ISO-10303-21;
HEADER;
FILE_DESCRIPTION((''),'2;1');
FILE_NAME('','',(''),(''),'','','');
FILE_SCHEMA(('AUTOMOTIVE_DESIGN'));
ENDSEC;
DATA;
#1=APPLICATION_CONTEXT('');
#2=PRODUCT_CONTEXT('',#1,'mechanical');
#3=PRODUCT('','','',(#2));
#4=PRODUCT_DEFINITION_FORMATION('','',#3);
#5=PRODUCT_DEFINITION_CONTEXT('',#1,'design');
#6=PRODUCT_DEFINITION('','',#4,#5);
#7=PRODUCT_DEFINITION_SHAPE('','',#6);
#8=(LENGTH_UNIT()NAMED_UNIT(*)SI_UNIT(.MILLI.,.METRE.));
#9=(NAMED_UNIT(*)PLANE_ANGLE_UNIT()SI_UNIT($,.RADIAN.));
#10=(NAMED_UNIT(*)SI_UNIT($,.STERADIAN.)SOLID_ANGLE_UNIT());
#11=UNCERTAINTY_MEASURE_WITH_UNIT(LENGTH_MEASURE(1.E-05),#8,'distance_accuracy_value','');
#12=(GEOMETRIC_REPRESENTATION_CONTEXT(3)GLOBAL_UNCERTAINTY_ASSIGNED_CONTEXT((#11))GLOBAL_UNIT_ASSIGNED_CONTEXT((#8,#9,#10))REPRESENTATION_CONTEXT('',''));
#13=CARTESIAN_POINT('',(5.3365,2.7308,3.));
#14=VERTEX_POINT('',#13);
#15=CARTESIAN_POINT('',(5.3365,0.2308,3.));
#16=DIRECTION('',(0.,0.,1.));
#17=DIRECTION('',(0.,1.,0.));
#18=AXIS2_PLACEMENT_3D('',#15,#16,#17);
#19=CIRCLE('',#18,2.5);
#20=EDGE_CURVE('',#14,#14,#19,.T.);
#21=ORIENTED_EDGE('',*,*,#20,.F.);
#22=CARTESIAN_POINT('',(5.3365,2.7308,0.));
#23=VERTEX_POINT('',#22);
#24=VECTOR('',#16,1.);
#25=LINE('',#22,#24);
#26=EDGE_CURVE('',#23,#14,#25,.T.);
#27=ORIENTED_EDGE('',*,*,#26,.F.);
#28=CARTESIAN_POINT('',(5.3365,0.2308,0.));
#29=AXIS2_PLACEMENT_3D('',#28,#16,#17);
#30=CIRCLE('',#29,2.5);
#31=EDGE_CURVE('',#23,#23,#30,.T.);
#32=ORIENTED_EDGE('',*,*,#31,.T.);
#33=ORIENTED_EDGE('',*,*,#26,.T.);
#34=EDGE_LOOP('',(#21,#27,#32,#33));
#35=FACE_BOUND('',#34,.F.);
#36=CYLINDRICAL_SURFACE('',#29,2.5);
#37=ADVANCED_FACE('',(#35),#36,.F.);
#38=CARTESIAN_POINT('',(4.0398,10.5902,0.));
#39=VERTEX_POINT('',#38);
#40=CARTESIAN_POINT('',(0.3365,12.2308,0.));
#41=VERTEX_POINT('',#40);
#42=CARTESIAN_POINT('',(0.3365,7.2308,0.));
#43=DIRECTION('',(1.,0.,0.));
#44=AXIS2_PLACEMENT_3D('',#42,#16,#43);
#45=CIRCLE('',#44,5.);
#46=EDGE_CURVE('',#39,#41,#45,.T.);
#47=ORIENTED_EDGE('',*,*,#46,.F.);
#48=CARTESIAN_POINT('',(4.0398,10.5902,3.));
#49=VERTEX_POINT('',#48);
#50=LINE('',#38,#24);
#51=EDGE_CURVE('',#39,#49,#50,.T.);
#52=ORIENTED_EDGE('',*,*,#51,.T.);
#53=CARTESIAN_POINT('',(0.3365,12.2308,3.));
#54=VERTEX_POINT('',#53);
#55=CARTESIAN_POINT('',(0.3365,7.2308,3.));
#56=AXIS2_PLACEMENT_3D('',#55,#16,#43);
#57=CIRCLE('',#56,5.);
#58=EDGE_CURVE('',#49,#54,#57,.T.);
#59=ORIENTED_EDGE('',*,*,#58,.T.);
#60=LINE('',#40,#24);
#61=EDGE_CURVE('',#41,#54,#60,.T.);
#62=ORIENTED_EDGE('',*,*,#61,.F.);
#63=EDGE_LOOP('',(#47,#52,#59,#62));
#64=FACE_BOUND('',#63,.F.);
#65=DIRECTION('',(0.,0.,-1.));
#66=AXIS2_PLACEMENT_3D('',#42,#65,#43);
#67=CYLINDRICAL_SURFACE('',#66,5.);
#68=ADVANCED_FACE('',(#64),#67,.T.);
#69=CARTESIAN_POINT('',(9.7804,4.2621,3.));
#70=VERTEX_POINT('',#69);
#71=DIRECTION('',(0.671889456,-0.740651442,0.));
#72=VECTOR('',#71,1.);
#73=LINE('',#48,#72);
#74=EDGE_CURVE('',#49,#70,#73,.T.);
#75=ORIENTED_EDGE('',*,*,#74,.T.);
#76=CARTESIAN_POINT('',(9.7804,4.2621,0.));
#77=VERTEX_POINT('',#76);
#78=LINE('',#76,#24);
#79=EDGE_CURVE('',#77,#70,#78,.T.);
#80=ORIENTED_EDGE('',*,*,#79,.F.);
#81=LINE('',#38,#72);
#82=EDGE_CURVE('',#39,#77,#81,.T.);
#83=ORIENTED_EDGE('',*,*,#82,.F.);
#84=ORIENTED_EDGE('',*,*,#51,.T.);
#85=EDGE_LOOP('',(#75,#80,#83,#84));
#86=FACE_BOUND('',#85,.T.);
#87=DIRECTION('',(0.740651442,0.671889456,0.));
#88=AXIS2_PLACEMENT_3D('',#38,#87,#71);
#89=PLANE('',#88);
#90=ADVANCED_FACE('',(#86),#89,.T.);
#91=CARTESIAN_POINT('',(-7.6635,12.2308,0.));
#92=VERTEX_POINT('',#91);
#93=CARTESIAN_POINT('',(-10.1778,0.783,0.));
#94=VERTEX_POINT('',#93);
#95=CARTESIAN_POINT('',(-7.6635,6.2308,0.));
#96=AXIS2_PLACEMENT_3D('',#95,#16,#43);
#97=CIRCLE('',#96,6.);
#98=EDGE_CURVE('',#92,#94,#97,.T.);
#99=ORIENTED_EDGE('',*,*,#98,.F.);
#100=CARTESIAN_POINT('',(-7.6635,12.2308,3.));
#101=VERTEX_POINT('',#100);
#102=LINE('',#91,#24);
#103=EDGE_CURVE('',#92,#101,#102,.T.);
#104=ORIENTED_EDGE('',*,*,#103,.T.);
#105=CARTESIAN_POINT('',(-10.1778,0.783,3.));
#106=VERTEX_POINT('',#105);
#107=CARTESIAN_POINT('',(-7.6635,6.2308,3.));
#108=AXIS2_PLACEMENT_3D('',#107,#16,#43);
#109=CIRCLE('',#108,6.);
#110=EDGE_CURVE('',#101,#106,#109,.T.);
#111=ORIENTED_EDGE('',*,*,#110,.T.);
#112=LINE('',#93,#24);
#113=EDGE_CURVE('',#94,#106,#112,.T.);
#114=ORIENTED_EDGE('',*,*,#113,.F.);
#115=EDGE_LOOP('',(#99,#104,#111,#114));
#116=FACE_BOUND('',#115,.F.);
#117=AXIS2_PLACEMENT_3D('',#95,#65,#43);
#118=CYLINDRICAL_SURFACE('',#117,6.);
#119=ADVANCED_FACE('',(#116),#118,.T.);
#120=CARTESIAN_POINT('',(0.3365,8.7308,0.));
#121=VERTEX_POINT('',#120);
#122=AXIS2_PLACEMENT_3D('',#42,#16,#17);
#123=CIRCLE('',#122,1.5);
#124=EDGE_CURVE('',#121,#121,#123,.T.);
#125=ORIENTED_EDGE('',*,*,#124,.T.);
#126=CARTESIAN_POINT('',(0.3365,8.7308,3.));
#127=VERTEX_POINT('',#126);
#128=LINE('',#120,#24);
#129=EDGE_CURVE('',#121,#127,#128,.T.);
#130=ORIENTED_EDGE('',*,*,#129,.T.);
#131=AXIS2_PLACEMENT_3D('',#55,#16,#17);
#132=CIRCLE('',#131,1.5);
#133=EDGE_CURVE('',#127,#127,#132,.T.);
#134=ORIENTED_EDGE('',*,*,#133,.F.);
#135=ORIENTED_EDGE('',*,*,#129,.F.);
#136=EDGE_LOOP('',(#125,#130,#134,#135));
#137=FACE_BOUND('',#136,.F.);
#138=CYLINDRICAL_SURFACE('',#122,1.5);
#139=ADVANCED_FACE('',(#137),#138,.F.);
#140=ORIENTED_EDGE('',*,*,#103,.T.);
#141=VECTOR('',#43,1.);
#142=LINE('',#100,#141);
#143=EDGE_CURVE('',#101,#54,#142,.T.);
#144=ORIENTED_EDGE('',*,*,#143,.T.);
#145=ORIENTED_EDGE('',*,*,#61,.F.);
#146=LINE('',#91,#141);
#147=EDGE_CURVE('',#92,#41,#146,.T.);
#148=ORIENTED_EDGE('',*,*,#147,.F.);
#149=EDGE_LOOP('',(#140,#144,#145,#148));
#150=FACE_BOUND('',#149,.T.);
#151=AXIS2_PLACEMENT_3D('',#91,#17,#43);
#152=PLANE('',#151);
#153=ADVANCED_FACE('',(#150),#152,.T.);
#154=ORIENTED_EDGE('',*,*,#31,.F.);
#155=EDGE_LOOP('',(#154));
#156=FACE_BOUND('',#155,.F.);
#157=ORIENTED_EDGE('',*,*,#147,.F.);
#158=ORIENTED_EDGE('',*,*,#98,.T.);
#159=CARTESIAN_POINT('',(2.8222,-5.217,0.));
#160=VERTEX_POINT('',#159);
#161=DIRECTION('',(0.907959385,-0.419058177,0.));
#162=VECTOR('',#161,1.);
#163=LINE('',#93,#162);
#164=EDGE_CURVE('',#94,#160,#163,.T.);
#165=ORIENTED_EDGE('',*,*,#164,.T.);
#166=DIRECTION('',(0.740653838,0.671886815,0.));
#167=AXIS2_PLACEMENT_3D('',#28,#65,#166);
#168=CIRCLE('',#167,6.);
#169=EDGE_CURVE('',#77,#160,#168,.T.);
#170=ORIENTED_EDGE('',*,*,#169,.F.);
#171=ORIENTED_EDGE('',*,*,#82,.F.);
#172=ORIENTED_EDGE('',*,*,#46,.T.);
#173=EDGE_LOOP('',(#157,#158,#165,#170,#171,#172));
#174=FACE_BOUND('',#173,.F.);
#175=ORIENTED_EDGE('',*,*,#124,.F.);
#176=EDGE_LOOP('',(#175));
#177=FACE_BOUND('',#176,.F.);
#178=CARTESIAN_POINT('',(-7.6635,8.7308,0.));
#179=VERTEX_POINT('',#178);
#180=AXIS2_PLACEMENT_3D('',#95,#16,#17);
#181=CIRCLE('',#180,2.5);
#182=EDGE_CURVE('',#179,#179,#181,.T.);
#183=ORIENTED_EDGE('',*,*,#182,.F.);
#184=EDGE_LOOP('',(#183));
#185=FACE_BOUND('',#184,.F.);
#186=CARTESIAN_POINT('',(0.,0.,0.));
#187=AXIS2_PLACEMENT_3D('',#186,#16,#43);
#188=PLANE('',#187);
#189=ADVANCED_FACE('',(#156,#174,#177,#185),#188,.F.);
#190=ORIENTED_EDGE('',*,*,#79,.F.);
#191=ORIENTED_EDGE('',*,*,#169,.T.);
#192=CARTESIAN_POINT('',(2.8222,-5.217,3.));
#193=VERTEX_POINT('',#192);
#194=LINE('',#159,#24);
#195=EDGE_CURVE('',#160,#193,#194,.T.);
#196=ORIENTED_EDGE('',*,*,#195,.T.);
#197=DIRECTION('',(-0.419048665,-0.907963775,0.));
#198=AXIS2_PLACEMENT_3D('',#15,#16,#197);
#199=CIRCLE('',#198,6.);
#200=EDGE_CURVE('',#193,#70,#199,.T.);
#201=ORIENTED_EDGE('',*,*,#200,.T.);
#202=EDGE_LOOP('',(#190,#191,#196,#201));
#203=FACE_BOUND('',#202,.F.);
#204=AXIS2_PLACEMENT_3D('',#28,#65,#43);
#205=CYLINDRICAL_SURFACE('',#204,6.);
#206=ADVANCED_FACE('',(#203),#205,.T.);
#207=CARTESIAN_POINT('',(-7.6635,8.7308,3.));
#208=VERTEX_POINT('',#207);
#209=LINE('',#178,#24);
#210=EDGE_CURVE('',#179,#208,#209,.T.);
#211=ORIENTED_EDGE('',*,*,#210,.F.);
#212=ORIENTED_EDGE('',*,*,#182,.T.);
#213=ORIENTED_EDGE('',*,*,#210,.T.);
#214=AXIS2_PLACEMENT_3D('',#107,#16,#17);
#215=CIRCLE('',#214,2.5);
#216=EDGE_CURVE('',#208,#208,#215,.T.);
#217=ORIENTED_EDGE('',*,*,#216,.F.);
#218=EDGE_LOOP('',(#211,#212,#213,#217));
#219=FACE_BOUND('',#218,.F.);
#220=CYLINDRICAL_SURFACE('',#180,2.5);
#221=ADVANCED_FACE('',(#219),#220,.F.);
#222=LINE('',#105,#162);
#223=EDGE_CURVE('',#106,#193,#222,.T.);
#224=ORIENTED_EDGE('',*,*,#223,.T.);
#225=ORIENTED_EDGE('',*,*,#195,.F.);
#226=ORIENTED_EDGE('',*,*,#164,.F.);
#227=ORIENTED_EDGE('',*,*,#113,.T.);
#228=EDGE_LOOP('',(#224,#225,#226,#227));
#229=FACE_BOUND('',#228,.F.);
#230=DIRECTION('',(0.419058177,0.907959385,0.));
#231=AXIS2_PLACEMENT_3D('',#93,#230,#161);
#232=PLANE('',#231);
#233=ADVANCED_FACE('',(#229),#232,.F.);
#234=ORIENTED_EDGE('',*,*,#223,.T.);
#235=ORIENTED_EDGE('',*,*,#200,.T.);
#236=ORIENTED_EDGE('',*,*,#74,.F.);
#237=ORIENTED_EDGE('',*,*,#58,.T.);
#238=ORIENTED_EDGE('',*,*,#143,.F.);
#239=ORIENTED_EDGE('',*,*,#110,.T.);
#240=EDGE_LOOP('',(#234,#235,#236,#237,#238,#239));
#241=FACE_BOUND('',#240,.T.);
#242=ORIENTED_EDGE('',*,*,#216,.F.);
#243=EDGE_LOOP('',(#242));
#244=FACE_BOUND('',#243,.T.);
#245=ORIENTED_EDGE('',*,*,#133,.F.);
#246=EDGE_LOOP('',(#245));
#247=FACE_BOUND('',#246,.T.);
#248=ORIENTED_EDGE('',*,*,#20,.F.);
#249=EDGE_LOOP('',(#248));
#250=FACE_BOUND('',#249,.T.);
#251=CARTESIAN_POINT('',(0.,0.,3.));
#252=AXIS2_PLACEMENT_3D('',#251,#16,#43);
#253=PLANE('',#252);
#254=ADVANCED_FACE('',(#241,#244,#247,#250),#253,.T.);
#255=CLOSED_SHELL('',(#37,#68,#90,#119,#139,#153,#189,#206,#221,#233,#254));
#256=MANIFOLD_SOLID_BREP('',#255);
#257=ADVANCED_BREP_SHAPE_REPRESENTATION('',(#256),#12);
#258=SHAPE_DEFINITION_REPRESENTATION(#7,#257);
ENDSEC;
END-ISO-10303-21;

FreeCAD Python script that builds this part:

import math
import FreeCAD as App
import Part
import Sketcher
Q = App.Units.Quantity

doc = App.newDocument("Part")
params = doc.addObject("Spreadsheet::Sheet", "Params")
for row, (alias, value) in enumerate([
    ("sketch1_radius", "5 mm"),
    ("sketch1_radius2", "6 mm"),
    ("pad1_length", "3 mm"),
    ("sketch2_diameter", "5 mm"),
    ("hole_diameter", "5 mm"),
    ("sketch3_diameter", "3 mm"),
    ("hole2_diameter", "3 mm"),
], start=1):
    params.set(f"A{row}", alias)
    params.set(f"B{row}", "=" + value)
    params.setAlias(f"B{row}", alias)

body = doc.addObject("PartDesign::Body", "Body")

sketch1 = body.newObject("Sketcher::SketchObject", "Sketch")
sketch1.AttachmentSupport = (doc.getObject("XY_Plane"), [""])
sketch1.MapMode = "FlatFace"
sketch1.addGeometry([
    Part.ArcOfCircle(Part.Circle(App.Vector(0.3, 7.2, 0), App.Vector(0, 0, 1), 5), math.radians(42), math.radians(90)),
    Part.LineSegment(App.Vector(0.3, 12.2, 0), App.Vector(-7.7, 12.2, 0)),
    Part.ArcOfCircle(Part.Circle(App.Vector(-7.7, 6.2, 0), App.Vector(0, 0, 1), 6), math.radians(90), math.radians(245)),
    Part.LineSegment(App.Vector(-10.2, 0.8, 0), App.Vector(2.8, -5.2, 0)),
    Part.ArcOfCircle(Part.Circle(App.Vector(5.3, 0.2, 0), App.Vector(0, 0, 1), 6), math.radians(-115), math.radians(42)),
    Part.LineSegment(App.Vector(9.8, 4.3, 0), App.Vector(4, 10.6, 0)),
], False)
sketch1.addConstraint([
    Sketcher.Constraint("Tangent", 0, 2, 1, 1),
    Sketcher.Constraint("Tangent", 1, 2, 2, 1),
    Sketcher.Constraint("Tangent", 2, 2, 3, 1),
    Sketcher.Constraint("Tangent", 3, 2, 4, 1),
    Sketcher.Constraint("Tangent", 4, 2, 5, 1),
    Sketcher.Constraint("Tangent", 5, 2, 0, 1),
    Sketcher.Constraint("Horizontal", 1),
    Sketcher.Constraint("Equal", 2, 4),
    Sketcher.Constraint("Radius", 0, Q("5 mm")),
    Sketcher.Constraint("Radius", 2, Q("6 mm")),
    Sketcher.Constraint("DistanceX", 0, 3, 4, 3, Q("5 mm")),
    Sketcher.Constraint("DistanceY", 4, 3, 0, 3, Q("7 mm")),
    Sketcher.Constraint("DistanceX", 2, 3, 4, 3, Q("13 mm")),
    Sketcher.Constraint("DistanceY", -1, 1, 2, 2, Q("0.783 mm")),
    Sketcher.Constraint("DistanceX", -1, 1, 0, 3, Q("0.3365 mm")),
])
sketch1.setExpression("Constraints[8]", "Params.sketch1_radius")
sketch1.setExpression("Constraints[9]", "Params.sketch1_radius2")
pad1 = body.newObject("PartDesign::Pad", "Pad")
pad1.Profile = sketch1
pad1.setExpression("Length", "Params.pad1_length")

sketch2 = body.newObject("Sketcher::SketchObject", "Sketch001")
sketch2.AttachmentSupport = (doc.getObject("XY_Plane"), [""])
sketch2.MapMode = "FlatFace"
sketch2.addGeometry([
    Part.Circle(App.Vector(5.3, 0.2, 0), App.Vector(0, 0, 1), 2.5),
    Part.Circle(App.Vector(-7.7, 6.2, 0), App.Vector(0, 0, 1), 2.5),
], False)
sketch2.addConstraint([
    Sketcher.Constraint("Equal", 0, 1),
    Sketcher.Constraint("Diameter", 0, Q("5 mm")),
    Sketcher.Constraint("DistanceX", 1, 3, 0, 3, Q("13 mm")),
    Sketcher.Constraint("DistanceY", 0, 3, 1, 3, Q("6 mm")),
    Sketcher.Constraint("DistanceX", -1, 1, 0, 3, Q("5.3365 mm")),
    Sketcher.Constraint("DistanceY", -1, 1, 0, 3, Q("0.2308 mm")),
])
sketch2.setExpression("Constraints[1]", "Params.sketch2_diameter")
doc.recompute()
hole = body.newObject("PartDesign::Hole", "Hole")
hole.Profile = sketch2
hole.ThreadType = "None"
hole.setExpression("Diameter", "Params.hole_diameter")
hole.DepthType = "ThroughAll"
hole.Reversed = True

sketch3 = body.newObject("Sketcher::SketchObject", "Sketch002")
sketch3.AttachmentSupport = (doc.getObject("XY_Plane"), [""])
sketch3.MapMode = "FlatFace"
sketch3.addGeometry(Part.Circle(App.Vector(0.3, 7.2, 0), App.Vector(0, 0, 1), 1.5), False)
sketch3.addConstraint([
    Sketcher.Constraint("Diameter", 0, Q("3 mm")),
    Sketcher.Constraint("DistanceX", -1, 1, 0, 3, Q("0.3365 mm")),
    Sketcher.Constraint("DistanceY", -1, 1, 0, 3, Q("7.2308 mm")),
])
sketch3.setExpression("Constraints[0]", "Params.sketch3_diameter")
doc.recompute()
hole2 = body.newObject("PartDesign::Hole", "Hole001")
hole2.Profile = sketch3
hole2.ThreadType = "None"
hole2.setExpression("Diameter", "Params.hole2_diameter")
hole2.DepthType = "ThroughAll"
hole2.Reversed = True

doc.recompute()
